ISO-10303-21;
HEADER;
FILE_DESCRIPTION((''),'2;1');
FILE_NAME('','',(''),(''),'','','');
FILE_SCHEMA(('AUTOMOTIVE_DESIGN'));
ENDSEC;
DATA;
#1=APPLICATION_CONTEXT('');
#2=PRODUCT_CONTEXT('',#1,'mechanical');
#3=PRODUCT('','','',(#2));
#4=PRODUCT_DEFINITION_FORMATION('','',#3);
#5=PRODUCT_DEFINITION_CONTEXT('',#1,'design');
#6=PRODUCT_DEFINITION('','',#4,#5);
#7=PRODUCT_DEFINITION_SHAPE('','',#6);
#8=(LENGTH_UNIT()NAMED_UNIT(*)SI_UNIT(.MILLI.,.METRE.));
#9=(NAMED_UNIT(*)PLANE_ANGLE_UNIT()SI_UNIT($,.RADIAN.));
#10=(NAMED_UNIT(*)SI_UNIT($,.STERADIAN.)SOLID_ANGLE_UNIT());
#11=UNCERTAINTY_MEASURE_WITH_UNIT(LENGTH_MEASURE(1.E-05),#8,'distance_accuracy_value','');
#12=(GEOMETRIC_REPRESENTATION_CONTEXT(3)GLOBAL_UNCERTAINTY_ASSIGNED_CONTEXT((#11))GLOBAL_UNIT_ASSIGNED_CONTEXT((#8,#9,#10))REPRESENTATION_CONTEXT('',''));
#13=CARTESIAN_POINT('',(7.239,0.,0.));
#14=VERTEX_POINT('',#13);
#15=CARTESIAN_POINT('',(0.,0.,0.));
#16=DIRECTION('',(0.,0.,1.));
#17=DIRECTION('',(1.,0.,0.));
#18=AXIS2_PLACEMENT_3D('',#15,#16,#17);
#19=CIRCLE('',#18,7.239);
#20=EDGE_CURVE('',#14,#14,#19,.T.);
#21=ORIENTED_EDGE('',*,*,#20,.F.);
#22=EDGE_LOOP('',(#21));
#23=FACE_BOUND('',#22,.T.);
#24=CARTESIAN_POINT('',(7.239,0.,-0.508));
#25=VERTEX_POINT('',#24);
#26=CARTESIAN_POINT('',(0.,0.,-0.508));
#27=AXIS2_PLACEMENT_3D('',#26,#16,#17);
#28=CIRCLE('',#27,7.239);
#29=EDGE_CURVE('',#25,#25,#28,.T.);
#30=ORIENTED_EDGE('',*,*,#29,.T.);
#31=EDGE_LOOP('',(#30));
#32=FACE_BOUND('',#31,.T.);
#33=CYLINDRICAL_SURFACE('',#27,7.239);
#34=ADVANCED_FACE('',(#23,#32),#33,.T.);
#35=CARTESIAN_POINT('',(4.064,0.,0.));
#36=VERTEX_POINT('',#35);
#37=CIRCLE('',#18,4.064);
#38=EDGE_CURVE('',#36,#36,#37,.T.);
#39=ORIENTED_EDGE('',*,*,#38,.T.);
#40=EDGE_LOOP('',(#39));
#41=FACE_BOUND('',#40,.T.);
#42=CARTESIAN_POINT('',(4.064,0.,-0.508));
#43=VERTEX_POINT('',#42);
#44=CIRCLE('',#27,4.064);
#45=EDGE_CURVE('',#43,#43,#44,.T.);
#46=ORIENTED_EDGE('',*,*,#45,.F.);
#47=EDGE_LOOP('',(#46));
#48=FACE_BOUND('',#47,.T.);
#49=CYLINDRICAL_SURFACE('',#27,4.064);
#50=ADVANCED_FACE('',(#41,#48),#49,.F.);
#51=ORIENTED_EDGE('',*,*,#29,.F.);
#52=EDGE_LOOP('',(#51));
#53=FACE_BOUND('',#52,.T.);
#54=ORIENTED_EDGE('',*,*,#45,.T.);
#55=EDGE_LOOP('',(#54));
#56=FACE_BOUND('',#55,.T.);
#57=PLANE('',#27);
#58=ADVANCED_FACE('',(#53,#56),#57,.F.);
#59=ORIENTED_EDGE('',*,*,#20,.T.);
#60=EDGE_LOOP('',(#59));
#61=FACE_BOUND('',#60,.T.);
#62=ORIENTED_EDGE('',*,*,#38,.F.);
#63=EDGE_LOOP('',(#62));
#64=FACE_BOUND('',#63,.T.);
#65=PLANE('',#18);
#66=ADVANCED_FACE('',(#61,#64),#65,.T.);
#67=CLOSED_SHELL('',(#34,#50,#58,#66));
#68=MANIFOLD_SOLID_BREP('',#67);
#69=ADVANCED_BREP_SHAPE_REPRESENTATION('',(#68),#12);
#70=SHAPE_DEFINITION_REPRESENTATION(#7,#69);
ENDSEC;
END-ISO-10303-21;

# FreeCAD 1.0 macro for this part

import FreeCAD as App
import Part
import Sketcher

V = App.Vector
Q = App.Units.Quantity

doc = App.newDocument("Part")
body = doc.addObject("PartDesign::Body", "Body")

sketch1 = body.newObject("Sketcher::SketchObject", "Sketch")
sketch1.AttachmentSupport = (doc.getObject("XY_Plane"), [""])
sketch1.MapMode = "FlatFace"
sketch1.addGeometry(Part.Circle(V(0, 0, 0), V(0, 0, 1), 7.239), False)
sketch1.addGeometry(Part.Circle(V(0, 0, 0), V(0, 0, 1), 4.064), False)
sketch1.addConstraint(Sketcher.Constraint("Coincident", 0, 3, -1, 1))
sketch1.addConstraint(Sketcher.Constraint("Coincident", 1, 3, -1, 1))
sketch1.addConstraint(Sketcher.Constraint("Diameter", 0, Q("0.57 in")))
sketch1.addConstraint(Sketcher.Constraint("Diameter", 1, Q("0.32 in")))
pad1 = body.newObject("PartDesign::Pad", "Pad")
pad1.Profile = sketch1
pad1.Length = Q("0.02 in")
pad1.Reversed = True

doc.recompute()
